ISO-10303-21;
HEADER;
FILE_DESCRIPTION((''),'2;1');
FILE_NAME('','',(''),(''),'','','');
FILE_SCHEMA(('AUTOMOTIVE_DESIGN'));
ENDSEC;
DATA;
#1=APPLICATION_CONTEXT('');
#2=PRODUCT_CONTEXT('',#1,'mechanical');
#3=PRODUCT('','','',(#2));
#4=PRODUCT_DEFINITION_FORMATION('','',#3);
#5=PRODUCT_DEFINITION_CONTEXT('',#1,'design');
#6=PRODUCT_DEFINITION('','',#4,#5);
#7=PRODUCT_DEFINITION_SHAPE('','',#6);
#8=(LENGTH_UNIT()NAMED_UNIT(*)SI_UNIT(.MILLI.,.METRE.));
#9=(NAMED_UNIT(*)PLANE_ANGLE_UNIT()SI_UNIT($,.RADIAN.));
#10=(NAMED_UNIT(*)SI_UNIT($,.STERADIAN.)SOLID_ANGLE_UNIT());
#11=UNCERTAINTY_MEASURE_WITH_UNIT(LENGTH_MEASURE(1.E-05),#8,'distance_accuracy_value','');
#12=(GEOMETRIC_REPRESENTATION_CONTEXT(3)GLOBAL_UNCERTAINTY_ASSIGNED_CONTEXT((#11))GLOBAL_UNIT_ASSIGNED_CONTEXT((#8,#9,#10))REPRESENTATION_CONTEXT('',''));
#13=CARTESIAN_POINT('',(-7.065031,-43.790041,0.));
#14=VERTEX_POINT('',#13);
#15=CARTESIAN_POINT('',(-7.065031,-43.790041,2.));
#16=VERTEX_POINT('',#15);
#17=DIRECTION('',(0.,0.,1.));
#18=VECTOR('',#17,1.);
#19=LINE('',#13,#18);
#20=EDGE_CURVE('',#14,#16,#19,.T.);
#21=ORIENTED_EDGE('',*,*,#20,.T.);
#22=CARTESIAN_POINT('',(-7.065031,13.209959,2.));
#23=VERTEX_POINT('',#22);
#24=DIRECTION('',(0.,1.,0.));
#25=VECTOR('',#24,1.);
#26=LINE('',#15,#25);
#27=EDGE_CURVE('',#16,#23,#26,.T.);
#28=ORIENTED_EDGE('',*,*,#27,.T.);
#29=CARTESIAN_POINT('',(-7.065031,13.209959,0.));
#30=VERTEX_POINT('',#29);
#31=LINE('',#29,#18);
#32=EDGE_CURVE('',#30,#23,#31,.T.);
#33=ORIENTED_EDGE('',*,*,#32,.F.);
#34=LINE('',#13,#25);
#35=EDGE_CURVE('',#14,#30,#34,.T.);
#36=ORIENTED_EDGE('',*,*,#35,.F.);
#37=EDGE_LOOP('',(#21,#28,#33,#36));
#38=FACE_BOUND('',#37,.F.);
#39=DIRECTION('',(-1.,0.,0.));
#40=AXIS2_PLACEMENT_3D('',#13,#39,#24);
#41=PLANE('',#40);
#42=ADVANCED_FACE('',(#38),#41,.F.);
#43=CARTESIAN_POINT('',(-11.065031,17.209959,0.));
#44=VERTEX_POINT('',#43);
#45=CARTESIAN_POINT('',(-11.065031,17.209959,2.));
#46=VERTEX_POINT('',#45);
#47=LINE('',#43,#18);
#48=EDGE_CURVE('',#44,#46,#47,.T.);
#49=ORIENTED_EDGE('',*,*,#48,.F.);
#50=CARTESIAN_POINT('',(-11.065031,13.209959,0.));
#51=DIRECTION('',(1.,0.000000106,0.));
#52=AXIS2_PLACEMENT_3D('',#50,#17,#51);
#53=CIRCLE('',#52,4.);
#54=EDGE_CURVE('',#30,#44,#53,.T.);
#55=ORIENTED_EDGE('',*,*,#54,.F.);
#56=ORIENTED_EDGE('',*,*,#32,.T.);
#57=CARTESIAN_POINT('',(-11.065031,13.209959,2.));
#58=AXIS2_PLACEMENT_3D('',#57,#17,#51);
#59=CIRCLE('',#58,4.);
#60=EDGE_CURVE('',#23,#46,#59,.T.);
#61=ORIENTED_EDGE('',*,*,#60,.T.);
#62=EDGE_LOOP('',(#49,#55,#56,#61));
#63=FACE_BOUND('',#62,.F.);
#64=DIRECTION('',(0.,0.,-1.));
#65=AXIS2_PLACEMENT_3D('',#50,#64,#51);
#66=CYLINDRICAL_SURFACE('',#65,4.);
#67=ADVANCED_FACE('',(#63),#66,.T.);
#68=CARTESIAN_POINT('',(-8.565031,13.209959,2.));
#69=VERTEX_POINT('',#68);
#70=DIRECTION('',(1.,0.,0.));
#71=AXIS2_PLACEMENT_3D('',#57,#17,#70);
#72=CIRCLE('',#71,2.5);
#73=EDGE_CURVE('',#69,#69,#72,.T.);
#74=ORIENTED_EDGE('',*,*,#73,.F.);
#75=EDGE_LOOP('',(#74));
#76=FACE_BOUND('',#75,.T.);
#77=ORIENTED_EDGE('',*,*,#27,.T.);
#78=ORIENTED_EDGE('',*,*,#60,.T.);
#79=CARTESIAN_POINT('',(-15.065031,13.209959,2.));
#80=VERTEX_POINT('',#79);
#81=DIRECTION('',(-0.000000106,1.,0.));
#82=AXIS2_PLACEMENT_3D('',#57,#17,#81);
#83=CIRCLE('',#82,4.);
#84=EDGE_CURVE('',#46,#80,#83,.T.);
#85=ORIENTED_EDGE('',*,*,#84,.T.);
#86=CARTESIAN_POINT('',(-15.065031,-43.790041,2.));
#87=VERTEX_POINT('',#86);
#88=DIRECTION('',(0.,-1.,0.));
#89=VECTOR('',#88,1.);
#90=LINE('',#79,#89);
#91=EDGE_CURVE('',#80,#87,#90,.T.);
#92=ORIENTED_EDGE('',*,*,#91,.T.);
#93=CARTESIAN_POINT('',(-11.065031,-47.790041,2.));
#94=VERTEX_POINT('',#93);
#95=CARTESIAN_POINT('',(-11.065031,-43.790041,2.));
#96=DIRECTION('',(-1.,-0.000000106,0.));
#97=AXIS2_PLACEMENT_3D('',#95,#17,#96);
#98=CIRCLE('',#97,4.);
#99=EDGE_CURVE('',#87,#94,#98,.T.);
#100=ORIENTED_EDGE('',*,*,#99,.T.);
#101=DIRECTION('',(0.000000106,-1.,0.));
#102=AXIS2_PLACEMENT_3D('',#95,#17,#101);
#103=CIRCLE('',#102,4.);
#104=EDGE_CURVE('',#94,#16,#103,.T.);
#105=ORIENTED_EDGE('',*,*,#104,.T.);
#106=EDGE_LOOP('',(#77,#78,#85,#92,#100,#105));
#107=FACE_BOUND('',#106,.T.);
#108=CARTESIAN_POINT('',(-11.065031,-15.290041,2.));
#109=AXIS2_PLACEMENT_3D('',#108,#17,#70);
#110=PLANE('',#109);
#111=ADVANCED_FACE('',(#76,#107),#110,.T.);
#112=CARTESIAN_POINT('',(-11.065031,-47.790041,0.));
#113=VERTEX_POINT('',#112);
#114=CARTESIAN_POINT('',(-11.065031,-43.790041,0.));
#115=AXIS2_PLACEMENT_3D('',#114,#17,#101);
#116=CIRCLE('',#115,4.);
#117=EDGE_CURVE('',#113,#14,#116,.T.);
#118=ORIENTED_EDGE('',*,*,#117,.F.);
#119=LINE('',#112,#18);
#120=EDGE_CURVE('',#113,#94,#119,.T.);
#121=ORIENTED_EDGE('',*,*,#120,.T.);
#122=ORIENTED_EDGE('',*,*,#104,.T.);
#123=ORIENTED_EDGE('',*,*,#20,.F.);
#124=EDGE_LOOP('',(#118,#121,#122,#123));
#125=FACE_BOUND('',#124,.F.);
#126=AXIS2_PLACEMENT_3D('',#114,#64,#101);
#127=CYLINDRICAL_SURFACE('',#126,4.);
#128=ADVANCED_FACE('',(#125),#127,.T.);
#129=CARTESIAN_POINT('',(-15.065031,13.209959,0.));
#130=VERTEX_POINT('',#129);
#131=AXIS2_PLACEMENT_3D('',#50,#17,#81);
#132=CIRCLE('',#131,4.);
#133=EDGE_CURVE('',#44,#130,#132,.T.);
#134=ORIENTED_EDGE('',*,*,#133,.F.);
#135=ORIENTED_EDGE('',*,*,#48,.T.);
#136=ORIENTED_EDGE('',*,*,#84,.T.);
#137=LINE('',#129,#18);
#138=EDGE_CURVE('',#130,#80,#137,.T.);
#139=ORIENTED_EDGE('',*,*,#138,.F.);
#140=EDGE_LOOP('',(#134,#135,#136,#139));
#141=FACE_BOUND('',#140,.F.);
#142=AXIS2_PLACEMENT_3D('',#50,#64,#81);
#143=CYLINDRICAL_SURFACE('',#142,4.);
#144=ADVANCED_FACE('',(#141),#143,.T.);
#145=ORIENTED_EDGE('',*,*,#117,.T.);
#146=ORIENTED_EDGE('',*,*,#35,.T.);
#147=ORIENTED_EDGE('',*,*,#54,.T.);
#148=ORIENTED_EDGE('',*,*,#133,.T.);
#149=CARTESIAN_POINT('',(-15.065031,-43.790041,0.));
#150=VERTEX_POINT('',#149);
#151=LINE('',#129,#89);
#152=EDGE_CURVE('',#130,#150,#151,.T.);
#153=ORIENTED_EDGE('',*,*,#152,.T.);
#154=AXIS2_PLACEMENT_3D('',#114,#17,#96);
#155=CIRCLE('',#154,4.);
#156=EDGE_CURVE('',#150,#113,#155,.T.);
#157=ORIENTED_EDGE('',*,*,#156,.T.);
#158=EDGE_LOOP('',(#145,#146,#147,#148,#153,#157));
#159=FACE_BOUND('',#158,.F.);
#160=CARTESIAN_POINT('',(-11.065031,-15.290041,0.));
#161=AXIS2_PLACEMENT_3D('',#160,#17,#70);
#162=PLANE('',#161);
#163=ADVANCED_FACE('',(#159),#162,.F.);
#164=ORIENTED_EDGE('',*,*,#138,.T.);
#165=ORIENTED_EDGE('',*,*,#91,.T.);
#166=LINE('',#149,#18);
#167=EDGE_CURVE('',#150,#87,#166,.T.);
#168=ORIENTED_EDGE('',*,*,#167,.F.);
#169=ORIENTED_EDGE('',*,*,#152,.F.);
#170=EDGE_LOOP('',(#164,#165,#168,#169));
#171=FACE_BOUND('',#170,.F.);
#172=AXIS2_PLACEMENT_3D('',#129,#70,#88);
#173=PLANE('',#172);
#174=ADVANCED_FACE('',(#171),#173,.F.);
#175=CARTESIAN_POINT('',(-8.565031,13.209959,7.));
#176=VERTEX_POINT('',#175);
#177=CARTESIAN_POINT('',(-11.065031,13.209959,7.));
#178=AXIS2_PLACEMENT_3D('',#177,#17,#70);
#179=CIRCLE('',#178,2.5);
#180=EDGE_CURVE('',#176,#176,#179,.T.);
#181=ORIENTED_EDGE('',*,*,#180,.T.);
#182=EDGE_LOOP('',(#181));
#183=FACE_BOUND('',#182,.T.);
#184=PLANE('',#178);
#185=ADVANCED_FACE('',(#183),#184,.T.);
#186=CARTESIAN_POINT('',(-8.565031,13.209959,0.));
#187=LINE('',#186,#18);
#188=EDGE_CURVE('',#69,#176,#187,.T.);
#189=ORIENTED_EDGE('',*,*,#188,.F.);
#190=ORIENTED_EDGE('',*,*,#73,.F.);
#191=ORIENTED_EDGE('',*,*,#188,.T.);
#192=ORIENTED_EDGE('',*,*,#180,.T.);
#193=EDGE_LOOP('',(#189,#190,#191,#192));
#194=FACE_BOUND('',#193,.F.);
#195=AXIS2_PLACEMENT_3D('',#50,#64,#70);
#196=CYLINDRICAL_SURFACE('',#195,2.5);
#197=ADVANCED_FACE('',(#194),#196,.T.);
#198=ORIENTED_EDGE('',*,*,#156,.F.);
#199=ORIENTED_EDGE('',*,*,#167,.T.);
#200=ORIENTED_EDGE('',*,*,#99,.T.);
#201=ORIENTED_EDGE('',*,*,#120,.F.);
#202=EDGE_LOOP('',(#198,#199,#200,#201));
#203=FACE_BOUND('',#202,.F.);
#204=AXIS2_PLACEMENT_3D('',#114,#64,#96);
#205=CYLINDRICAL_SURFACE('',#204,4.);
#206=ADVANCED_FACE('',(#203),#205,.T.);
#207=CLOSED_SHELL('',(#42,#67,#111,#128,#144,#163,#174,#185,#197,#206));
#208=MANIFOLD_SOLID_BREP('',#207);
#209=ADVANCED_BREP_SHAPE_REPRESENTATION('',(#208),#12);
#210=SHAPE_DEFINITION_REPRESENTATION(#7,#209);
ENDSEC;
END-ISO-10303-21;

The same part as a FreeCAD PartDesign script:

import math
import FreeCAD as App
import Part
import Sketcher

V = App.Vector
Q = App.Units.Quantity

doc = App.newDocument("Part")
body = doc.addObject("PartDesign::Body", "Body")

sketch1 = body.newObject("Sketcher::SketchObject", "Sketch")
sketch1.AttachmentSupport = (doc.getObject("XY_Plane"), [""])
sketch1.MapMode = "FlatFace"
sketch1.addGeometry(Part.Circle(V(-11.1, 13.2, 0), V(0, 0, 1), 2.5), False)
sketch1.addConstraint([
    Sketcher.Constraint("Diameter", 0, Q("5 mm")),
    Sketcher.Constraint("DistanceX", 0, 3, -1, 1, Q("11.065031 mm")),
    Sketcher.Constraint("DistanceY", -1, 1, 0, 3, Q("13.209959 mm")),
])
pad1 = body.newObject("PartDesign::Pad", "Pad")
pad1.Profile = sketch1
pad1.Length = 7

sketch2 = body.newObject("Sketcher::SketchObject", "Sketch001")
sketch2.AttachmentSupport = (doc.getObject("XY_Plane"), [""])
sketch2.MapMode = "FlatFace"
sketch2.addGeometry([
    Part.ArcOfCircle(Part.Circle(V(-11.1, 13.2, 0), V(0, 0, 1), 4), math.radians(90), math.radians(180)),
    Part.LineSegment(V(-15.1, 13.2, 0), V(-15.1, -43.8, 0)),
    Part.ArcOfCircle(Part.Circle(V(-11.1, -43.8, 0), V(0, 0, 1), 4), math.radians(-180), math.radians(-90)),
    Part.ArcOfCircle(Part.Circle(V(-11.1, -43.8, 0), V(0, 0, 1), 4), math.radians(-90), math.radians(0)),
    Part.LineSegment(V(-7.1, -43.8, 0), V(-7.1, 13.2, 0)),
    Part.ArcOfCircle(Part.Circle(V(-11.1, 13.2, 0), V(0, 0, 1), 4), math.radians(0), math.radians(90)),
    Part.Circle(V(-11.1, 13.2, 0), V(0, 0, 1), 2.5),
], False)
sketch2.addConstraint([
    Sketcher.Constraint("Tangent", 0, 2, 1, 1),
    Sketcher.Constraint("Tangent", 1, 2, 2, 1),
    Sketcher.Constraint("Tangent", 2, 2, 3, 1),
    Sketcher.Constraint("Tangent", 3, 2, 4, 1),
    Sketcher.Constraint("Tangent", 4, 2, 5, 1),
    Sketcher.Constraint("Tangent", 5, 2, 0, 1),
    Sketcher.Constraint("Vertical", 1),
    Sketcher.Constraint("Vertical", 4),
    Sketcher.Constraint("Coincident", 6, 3, 0, 3),
    Sketcher.Constraint("Equal", 0, 2),
    Sketcher.Constraint("Equal", 2, 3),
    Sketcher.Constraint("Vertical", 6, 3, 2, 2),
    Sketcher.Constraint("Vertical", 2, 2, 5, 2),
    Sketcher.Constraint("Diameter", 6, Q("5 mm")),
    Sketcher.Constraint("Radius", 0, Q("4 mm")),
    Sketcher.Constraint("DistanceY", 1, 2, 1, 1, Q("57 mm")),
    Sketcher.Constraint("DistanceX", 0, 3, -1, 1, Q("11.065031 mm")),
    Sketcher.Constraint("DistanceY", -1, 1, 0, 3, Q("13.209959 mm")),
])
pad2 = body.newObject("PartDesign::Pad", "Pad001")
pad2.Profile = sketch2
pad2.Length = 2

doc.recompute()
